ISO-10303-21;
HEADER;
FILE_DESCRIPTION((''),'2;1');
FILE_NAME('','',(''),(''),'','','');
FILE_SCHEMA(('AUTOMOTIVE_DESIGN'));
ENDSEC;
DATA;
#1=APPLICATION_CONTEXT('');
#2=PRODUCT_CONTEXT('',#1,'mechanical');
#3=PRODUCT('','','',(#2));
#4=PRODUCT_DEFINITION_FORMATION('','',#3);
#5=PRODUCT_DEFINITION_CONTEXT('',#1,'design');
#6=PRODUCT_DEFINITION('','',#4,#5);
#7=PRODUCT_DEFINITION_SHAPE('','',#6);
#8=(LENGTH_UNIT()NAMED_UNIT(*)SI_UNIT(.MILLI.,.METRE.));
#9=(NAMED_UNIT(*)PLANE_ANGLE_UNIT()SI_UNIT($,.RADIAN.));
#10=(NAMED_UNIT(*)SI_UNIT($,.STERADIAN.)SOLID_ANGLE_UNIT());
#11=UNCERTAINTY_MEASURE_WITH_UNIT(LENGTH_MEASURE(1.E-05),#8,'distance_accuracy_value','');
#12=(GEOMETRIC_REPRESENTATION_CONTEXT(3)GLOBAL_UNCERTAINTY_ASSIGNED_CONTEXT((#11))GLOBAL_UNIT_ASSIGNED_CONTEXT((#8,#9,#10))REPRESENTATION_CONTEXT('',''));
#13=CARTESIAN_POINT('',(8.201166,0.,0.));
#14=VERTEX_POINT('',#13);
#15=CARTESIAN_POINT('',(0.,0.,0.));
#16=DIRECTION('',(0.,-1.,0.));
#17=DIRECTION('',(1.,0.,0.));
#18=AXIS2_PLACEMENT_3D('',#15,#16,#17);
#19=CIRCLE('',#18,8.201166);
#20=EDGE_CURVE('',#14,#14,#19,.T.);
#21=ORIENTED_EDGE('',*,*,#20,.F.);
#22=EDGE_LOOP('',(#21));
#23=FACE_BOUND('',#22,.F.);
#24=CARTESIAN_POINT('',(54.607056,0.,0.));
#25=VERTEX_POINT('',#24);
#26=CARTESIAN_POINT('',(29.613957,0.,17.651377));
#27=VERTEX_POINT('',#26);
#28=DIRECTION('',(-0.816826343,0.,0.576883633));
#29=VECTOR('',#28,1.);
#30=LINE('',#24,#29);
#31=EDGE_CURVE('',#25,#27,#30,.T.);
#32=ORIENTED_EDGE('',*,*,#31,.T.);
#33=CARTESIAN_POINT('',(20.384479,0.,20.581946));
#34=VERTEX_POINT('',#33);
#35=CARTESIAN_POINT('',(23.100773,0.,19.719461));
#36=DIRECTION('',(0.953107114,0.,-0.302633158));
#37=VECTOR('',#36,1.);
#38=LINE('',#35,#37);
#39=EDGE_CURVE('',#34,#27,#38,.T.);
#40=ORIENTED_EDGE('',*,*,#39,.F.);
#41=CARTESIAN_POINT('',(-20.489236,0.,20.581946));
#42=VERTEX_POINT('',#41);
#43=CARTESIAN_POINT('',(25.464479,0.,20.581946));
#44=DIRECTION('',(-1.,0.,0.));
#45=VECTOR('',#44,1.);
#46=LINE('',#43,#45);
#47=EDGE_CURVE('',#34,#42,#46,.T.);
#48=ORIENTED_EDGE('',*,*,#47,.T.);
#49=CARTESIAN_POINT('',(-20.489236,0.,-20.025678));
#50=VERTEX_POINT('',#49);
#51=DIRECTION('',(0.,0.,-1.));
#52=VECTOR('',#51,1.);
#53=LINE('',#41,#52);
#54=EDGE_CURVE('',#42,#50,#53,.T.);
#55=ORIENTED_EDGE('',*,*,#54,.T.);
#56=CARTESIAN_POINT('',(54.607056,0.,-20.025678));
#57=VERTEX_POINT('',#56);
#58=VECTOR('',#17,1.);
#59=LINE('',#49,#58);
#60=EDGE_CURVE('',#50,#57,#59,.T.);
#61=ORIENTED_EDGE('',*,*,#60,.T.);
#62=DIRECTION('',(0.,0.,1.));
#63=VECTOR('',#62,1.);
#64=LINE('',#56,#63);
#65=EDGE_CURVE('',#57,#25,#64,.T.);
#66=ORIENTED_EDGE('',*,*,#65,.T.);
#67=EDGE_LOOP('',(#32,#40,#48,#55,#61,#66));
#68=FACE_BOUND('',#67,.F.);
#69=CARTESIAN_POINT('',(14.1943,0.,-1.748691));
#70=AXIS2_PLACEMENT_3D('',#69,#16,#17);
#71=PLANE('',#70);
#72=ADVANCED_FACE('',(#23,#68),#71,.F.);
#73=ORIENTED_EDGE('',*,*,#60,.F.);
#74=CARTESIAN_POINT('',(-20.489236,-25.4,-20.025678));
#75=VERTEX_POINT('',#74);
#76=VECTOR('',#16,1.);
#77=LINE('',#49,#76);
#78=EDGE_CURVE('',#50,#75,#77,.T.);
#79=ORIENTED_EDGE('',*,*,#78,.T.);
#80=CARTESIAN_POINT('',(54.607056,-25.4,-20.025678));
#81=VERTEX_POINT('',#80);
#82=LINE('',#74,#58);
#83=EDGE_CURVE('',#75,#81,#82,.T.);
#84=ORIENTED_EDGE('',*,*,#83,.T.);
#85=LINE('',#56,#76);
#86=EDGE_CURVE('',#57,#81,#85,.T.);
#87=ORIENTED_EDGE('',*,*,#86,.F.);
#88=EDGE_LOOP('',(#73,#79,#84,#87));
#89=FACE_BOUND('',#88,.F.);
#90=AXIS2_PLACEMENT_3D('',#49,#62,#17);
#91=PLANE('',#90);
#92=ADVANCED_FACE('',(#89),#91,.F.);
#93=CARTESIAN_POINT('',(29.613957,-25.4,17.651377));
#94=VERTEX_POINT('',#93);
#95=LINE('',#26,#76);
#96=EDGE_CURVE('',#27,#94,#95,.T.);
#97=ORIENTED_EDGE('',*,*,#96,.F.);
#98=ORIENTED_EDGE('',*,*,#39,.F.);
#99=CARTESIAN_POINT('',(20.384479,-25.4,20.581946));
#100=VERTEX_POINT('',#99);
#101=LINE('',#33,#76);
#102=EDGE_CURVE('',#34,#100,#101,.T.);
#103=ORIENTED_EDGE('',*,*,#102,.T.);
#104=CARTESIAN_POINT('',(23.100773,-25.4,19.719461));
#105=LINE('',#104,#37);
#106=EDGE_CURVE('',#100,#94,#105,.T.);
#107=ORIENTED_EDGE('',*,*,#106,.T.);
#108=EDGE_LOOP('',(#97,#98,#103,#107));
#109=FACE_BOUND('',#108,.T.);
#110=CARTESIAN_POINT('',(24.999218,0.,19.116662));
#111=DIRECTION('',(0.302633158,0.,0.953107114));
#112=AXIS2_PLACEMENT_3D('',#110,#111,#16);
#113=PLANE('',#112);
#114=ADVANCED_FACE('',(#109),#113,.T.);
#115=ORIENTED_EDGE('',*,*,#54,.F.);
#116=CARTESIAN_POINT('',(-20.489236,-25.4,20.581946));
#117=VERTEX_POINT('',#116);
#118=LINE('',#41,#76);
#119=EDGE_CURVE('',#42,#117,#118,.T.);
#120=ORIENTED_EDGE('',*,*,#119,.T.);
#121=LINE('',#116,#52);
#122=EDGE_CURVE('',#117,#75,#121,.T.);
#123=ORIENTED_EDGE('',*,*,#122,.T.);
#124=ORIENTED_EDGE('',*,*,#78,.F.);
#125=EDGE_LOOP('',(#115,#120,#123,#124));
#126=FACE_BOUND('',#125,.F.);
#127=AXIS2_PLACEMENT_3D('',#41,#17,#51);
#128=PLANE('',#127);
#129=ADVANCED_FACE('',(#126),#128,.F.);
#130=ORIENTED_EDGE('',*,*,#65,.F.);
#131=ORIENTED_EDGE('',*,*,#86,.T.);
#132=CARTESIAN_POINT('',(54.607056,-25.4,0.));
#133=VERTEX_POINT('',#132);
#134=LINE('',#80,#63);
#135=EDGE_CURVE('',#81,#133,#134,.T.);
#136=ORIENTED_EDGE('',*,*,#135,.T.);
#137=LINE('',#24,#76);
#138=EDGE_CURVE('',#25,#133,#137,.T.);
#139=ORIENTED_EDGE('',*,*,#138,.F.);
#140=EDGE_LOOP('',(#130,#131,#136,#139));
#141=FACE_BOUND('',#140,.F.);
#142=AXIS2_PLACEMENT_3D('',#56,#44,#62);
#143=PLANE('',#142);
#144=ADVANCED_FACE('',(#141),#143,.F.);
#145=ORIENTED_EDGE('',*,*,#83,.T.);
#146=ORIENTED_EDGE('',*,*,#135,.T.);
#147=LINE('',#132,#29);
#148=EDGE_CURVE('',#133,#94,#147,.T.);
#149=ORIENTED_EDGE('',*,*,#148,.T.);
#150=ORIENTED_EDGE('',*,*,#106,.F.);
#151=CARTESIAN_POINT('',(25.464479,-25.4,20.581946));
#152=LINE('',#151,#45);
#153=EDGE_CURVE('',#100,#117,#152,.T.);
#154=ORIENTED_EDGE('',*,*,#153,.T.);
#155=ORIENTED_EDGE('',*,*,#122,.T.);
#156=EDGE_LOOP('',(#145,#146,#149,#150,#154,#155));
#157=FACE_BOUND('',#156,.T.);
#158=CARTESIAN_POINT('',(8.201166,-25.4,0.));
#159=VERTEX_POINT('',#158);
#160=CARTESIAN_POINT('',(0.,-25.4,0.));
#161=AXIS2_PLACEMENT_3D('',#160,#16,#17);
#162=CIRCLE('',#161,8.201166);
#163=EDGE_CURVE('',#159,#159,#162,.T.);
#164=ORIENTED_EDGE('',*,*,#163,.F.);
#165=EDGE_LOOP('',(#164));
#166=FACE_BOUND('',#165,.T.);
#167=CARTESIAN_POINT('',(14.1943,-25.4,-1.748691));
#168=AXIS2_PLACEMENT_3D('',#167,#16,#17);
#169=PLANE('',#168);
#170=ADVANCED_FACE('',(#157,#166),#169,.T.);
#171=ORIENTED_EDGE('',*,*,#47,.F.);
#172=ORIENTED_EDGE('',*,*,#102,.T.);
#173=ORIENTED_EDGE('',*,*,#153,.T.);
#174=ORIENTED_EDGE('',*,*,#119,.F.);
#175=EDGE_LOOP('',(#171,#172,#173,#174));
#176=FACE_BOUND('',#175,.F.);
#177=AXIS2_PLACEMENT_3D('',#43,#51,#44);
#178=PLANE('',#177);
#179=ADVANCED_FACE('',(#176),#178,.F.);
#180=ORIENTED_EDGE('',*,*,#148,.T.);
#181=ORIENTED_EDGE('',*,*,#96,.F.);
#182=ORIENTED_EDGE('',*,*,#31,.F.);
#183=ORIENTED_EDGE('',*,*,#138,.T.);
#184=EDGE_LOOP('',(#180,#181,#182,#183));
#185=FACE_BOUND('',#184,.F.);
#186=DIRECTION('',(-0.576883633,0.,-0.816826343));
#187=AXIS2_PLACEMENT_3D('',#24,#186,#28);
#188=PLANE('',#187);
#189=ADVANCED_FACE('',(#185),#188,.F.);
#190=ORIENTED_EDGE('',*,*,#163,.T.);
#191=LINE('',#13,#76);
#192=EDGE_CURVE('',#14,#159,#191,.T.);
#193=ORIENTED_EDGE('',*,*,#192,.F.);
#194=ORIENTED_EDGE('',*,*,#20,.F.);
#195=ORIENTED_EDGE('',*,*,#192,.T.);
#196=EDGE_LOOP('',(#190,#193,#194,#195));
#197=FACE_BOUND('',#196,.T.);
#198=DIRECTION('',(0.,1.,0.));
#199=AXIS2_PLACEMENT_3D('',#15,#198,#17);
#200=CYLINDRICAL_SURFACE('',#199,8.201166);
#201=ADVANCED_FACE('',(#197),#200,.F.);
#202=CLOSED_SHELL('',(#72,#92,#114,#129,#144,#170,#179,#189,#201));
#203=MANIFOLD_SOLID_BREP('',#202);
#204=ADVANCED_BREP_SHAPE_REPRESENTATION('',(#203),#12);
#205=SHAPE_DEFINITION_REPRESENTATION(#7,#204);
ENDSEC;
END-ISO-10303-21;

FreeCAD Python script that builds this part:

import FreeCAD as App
import Part
import Sketcher

V = App.Vector
Q = App.Units.Quantity


def edges_at(feature, points):
    """Names of the edges that pass closest to the given points."""
    edges = feature.Shape.Edges
    near = lambda p: min(range(len(edges)), key=lambda i: edges[i].distToShape(Part.Vertex(*p))[0])
    return sorted({f"Edge{near(p) + 1}" for p in points})

doc = App.newDocument("Part")
params = doc.addObject("Spreadsheet::Sheet", "Params")
for row, (alias, value) in enumerate([
    ("pad1_length", "1 in"),
    ("chamfer_size", "0.2 in"),
], start=1):
    params.set(f"A{row}", alias)
    params.set(f"B{row}", "=" + value)
    params.setAlias(f"B{row}", alias)

body = doc.addObject("PartDesign::Body", "Body")

# Sketch on XZ plane
sketch1 = body.newObject("Sketcher::SketchObject", "Sketch")
sketch1.AttachmentSupport = (doc.getObject("XZ_Plane"), [""])
sketch1.MapMode = "FlatFace"
sketch1.addGeometry(Part.LineSegment(V(25, 21, 0), V(-20, 21, 0)), False)
sketch1.addGeometry(Part.LineSegment(V(-20, 21, 0), V(-20, -20, 0)), False)
sketch1.addGeometry(Part.LineSegment(V(-20, -20, 0), V(55, -20, 0)), False)
sketch1.addGeometry(Part.LineSegment(V(55, -20, 0), V(55, 0, 0)), False)
sketch1.addGeometry(Part.LineSegment(V(55, 0, 0), V(25, 21, 0)), False)
sketch1.addGeometry(Part.Circle(V(0, 0, 0), V(0, 0, 1), 8), False)
sketch1.addConstraint(Sketcher.Constraint("Coincident", 0, 2, 1, 1))
sketch1.addConstraint(Sketcher.Constraint("Coincident", 1, 2, 2, 1))
sketch1.addConstraint(Sketcher.Constraint("Coincident", 2, 2, 3, 1))
sketch1.addConstraint(Sketcher.Constraint("Coincident", 3, 2, 4, 1))
sketch1.addConstraint(Sketcher.Constraint("Coincident", 4, 2, 0, 1))
sketch1.addConstraint(Sketcher.Constraint("Horizontal", 0))
sketch1.addConstraint(Sketcher.Constraint("Vertical", 1))
sketch1.addConstraint(Sketcher.Constraint("Horizontal", 2))
sketch1.addConstraint(Sketcher.Constraint("Vertical", 3))
sketch1.addConstraint(Sketcher.Constraint("Coincident", 5, 3, -1, 1))
sketch1.addConstraint(Sketcher.Constraint("PointOnObject", 3, 2, -1))
sketch1.addConstraint(Sketcher.Constraint("Diameter", 5, Q("16.402332 mm")))
sketch1.addConstraint(Sketcher.Constraint("DistanceX", 0, 2, 0, 1, Q("45.953715 mm")))
sketch1.addConstraint(Sketcher.Constraint("DistanceX", 2, 1, 2, 2, Q("75.096292 mm")))
sketch1.addConstraint(Sketcher.Constraint("DistanceY", 1, 2, 1, 1, Q("40.607624 mm")))
sketch1.addConstraint(Sketcher.Constraint("DistanceY", 3, 1, 3, 2, Q("20.025678 mm")))
sketch1.addConstraint(Sketcher.Constraint("DistanceX", -1, 1, 4, 2, Q("25.464479 mm")))
pad1 = body.newObject("PartDesign::Pad", "Pad")
pad1.Profile = sketch1
pad1.setExpression("Length", "Params.pad1_length")
doc.recompute()

chamfer = body.newObject("PartDesign::Chamfer", "Chamfer")
chamfer.Base = (pad1, edges_at(pad1, [(25.464, -12.7, 20.582)]))
chamfer.setExpression("Size", "Params.chamfer_size")

doc.recompute()
